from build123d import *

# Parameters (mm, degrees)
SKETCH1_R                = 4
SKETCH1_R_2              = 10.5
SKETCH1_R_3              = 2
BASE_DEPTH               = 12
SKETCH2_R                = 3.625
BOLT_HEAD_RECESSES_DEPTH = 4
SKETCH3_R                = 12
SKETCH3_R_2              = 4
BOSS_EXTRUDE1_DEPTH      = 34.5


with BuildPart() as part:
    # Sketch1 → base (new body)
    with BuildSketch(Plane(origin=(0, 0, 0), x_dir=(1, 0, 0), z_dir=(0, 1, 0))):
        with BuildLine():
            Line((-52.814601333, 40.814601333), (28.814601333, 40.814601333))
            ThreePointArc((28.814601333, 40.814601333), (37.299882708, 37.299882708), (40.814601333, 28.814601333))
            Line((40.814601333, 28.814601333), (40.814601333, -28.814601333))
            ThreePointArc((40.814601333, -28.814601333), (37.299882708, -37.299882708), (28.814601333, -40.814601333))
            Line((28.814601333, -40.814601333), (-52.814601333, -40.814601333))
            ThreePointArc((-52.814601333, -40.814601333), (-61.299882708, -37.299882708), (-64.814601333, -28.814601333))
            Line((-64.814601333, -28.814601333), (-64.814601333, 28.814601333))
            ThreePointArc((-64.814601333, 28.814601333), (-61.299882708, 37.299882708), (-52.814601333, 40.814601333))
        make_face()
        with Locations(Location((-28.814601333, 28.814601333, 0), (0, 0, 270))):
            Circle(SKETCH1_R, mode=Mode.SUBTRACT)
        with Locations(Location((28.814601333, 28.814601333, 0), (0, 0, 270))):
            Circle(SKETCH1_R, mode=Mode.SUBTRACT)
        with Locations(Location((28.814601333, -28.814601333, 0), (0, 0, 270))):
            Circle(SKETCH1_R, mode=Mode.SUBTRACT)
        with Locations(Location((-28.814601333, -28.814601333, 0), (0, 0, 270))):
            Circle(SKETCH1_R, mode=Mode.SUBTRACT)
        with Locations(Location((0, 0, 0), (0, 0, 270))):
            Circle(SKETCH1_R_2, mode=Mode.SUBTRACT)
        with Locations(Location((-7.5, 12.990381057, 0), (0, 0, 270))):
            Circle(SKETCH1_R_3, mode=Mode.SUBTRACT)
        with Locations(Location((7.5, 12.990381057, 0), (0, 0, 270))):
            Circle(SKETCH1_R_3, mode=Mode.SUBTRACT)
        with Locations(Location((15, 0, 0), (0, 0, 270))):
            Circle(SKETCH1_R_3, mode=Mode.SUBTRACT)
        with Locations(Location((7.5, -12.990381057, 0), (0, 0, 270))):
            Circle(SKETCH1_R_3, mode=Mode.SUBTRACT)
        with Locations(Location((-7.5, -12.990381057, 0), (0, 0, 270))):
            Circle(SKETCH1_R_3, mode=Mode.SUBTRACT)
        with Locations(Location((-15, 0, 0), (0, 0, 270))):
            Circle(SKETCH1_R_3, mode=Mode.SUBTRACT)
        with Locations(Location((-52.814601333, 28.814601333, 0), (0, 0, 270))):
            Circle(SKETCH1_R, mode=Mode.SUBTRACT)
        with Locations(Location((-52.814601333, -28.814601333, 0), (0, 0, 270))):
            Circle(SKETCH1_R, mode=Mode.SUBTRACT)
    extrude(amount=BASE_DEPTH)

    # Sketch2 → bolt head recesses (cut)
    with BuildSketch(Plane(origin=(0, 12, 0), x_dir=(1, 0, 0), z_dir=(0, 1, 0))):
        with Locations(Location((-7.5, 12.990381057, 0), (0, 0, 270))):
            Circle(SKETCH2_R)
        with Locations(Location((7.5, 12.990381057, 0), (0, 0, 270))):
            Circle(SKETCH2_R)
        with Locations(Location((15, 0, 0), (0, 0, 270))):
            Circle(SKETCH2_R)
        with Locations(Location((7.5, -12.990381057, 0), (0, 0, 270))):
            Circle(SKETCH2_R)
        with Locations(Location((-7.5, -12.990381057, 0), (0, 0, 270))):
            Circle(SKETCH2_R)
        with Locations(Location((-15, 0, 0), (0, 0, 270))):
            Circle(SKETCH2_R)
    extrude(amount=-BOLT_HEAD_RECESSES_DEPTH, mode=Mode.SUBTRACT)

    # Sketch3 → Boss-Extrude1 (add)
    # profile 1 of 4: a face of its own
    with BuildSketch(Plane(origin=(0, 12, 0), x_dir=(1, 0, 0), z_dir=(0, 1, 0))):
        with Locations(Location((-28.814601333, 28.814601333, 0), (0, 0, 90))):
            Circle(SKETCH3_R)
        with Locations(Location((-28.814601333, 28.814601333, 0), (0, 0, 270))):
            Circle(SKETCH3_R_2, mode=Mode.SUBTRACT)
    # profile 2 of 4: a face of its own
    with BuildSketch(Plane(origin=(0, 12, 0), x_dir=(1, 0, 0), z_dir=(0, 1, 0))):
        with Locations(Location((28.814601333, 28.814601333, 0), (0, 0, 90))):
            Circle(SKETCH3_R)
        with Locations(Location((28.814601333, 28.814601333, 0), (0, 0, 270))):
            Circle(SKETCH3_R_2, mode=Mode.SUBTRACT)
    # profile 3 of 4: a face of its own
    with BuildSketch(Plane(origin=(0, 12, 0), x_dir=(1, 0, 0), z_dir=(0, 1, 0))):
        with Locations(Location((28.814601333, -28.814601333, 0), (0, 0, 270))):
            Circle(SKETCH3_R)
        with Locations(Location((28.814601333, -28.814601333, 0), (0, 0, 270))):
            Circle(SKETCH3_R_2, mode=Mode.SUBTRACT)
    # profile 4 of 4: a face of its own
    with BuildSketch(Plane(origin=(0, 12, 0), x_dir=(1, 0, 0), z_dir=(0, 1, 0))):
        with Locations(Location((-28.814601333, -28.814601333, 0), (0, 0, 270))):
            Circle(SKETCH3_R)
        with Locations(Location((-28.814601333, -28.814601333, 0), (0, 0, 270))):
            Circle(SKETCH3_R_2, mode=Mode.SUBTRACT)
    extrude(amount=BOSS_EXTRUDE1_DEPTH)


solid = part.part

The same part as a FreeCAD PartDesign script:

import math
import FreeCAD as App
import Part
import Sketcher

doc = App.newDocument("Part")
body = doc.addObject("PartDesign::Body", "Body")

# Sketch on XZ plane
sketch1 = body.newObject("Sketcher::SketchObject", "Sketch")
sketch1.AttachmentSupport = (doc.getObject("XZ_Plane"), [""])
sketch1.MapMode = "FlatFace"
sketch1.addGeometry([
    Part.LineSegment(App.Vector(28.814601, -40.814601, 0), App.Vector(-52.814601, -40.814601, 0)),  # 0
    Part.ArcOfCircle(Part.Circle(App.Vector(-52.814601, -28.814601, 0), App.Vector(0, 0, 1), 12), math.radians(180), math.radians(270)),  # 1
    Part.LineSegment(App.Vector(-64.814601, -28.814601, 0), App.Vector(-64.814601, 28.814601, 0)),  # 2
    Part.ArcOfCircle(Part.Circle(App.Vector(-52.814601, 28.814601, 0), App.Vector(0, 0, 1), 12), math.radians(90), math.radians(180)),  # 3
    Part.LineSegment(App.Vector(-52.814601, 40.814601, 0), App.Vector(28.814601, 40.814601, 0)),  # 4
    Part.ArcOfCircle(Part.Circle(App.Vector(28.814601, 28.814601, 0), App.Vector(0, 0, 1), 12), math.radians(0), math.radians(90)),  # 5
    Part.LineSegment(App.Vector(40.814601, 28.814601, 0), App.Vector(40.814601, -28.814601, 0)),  # 6
    Part.ArcOfCircle(Part.Circle(App.Vector(28.814601, -28.814601, 0), App.Vector(0, 0, 1), 12), math.radians(-90), math.radians(0)),  # 7
    Part.Circle(App.Vector(28.814601, 28.814601, 0), App.Vector(0, 0, 1), 4),  # 8
    Part.Circle(App.Vector(7.5, 12.990381, 0), App.Vector(0, 0, 1), 2),  # 9
    Part.Circle(App.Vector(-7.5, 12.990381, 0), App.Vector(0, 0, 1), 2),  # 10
    Part.Circle(App.Vector(-28.814601, 28.814601, 0), App.Vector(0, 0, 1), 4),  # 11
    Part.Circle(App.Vector(-52.814601, 28.814601, 0), App.Vector(0, 0, 1), 4),  # 12
    Part.Circle(App.Vector(15, 0, 0), App.Vector(0, 0, 1), 2),  # 13
    Part.Circle(App.Vector(0, 0, 0), App.Vector(0, 0, 1), 10.5),  # 14
    Part.Circle(App.Vector(7.5, -12.990381, 0), App.Vector(0, 0, 1), 2),  # 15
    Part.Circle(App.Vector(-7.5, -12.990381, 0), App.Vector(0, 0, 1), 2),  # 16
    Part.Circle(App.Vector(28.814601, -28.814601, 0), App.Vector(0, 0, 1), 4),  # 17
    Part.Circle(App.Vector(-15, 0, 0), App.Vector(0, 0, 1), 2),  # 18
    Part.Circle(App.Vector(-28.814601, -28.814601, 0), App.Vector(0, 0, 1), 4),  # 19
    Part.Circle(App.Vector(-52.814601, -28.814601, 0), App.Vector(0, 0, 1), 4),  # 20
], False)
sketch1.addConstraint([
    Sketcher.Constraint("Tangent", 0, 2, 1, 2),
    Sketcher.Constraint("Tangent", 1, 1, 2, 1),
    Sketcher.Constraint("Tangent", 2, 2, 3, 2),
    Sketcher.Constraint("Tangent", 3, 1, 4, 1),
    Sketcher.Constraint("Tangent", 4, 2, 5, 2),
    Sketcher.Constraint("Tangent", 5, 1, 6, 1),
    Sketcher.Constraint("Tangent", 6, 2, 7, 2),
    Sketcher.Constraint("Tangent", 7, 1, 0, 1),
    Sketcher.Constraint("Horizontal", 0),
    Sketcher.Constraint("Vertical", 2),
    Sketcher.Constraint("Horizontal", 4),
    Sketcher.Constraint("Vertical", 6),
    Sketcher.Constraint("Coincident", 14, 3, -1, 1),
    Sketcher.Constraint("Coincident", 8, 3, 5, 3),
    Sketcher.Constraint("Coincident", 12, 3, 3, 3),
    Sketcher.Constraint("Coincident", 17, 3, 7, 3),
    Sketcher.Constraint("Coincident", 20, 3, 1, 3),
    Sketcher.Constraint("Equal", 1, 3),
    Sketcher.Constraint("Equal", 3, 5),
    Sketcher.Constraint("Equal", 5, 7),
    Sketcher.Constraint("Equal", 9, 10),
    Sketcher.Constraint("Equal", 8, 11),
    Sketcher.Constraint("Equal", 11, 12),
    Sketcher.Constraint("Equal", 10, 13),
    Sketcher.Constraint("Equal", 13, 15),
    Sketcher.Constraint("Equal", 15, 16),
    Sketcher.Constraint("Equal", 12, 17),
    Sketcher.Constraint("Equal", 16, 18),
    Sketcher.Constraint("Equal", 17, 19),
    Sketcher.Constraint("Equal", 19, 20),
    Sketcher.Constraint("Symmetric", 7, 3, 11, 3, -1, 1),
    Sketcher.Constraint("Symmetric", 10, 3, 15, 3, -1, 1),
    Sketcher.Constraint("Symmetric", 9, 3, 16, 3, -1, 1),
    Sketcher.Constraint("Symmetric", 13, 3, 18, 3, -1, 1),
    Sketcher.Constraint("Symmetric", 5, 3, 19, 3, -1, 1),
    Sketcher.Constraint("Symmetric", 9, 3, 10, 3, -2),
    Sketcher.Constraint("PointOnObject", 13, 3, -1),
    Sketcher.Constraint("Horizontal", 8, 3, 11, 3),
    Sketcher.Constraint("Diameter", 8, 8.0),
    Sketcher.Constraint("Diameter", 9, 4.0),
    Sketcher.Constraint("Diameter", 14, 21.0),
    Sketcher.Constraint("Radius", 1, 12.0),
    Sketcher.Constraint("DistanceX", -1, 1, 13, 3, 15.0),
    Sketcher.Constraint("DistanceX", 10, 3, 9, 3, 15.0),
    Sketcher.Constraint("DistanceX", 3, 3, 11, 3, 24.0),
    Sketcher.Constraint("DistanceX", 1, 3, -1, 1, 52.814601),
    Sketcher.Constraint("DistanceY", 1, 3, -1, 1, 28.814601),
    Sketcher.Constraint("DistanceY", -1, 1, 9, 3, 12.990381),
])
pad1 = body.newObject("PartDesign::Pad", "Pad")
pad1.Profile = sketch1
pad1.Length = 12
pad1.Reversed = True

# Sketch on XZ plane
sketch2 = body.newObject("Sketcher::SketchObject", "Sketch001")
sketch2.AttachmentSupport = (doc.getObject("XZ_Plane"), [""])
sketch2.MapMode = "FlatFace"
sketch2.AttachmentOffset = App.Placement(App.Vector(0, 0, -12), App.Rotation())
sketch2.addGeometry([
    Part.Circle(App.Vector(-7.5, -12.990381, 0), App.Vector(0, 0, 1), 3.625),  # 0
    Part.Circle(App.Vector(7.5, -12.990381, 0), App.Vector(0, 0, 1), 3.625),  # 1
    Part.Circle(App.Vector(15, 0, 0), App.Vector(0, 0, 1), 3.625),  # 2
    Part.Circle(App.Vector(7.5, 12.990381, 0), App.Vector(0, 0, 1), 3.625),  # 3
    Part.Circle(App.Vector(-7.5, 12.990381, 0), App.Vector(0, 0, 1), 3.625),  # 4
    Part.Circle(App.Vector(-15, 0, 0), App.Vector(0, 0, 1), 3.625),  # 5
], False)
sketch2.addConstraint([
    Sketcher.Constraint("Equal", 0, 1),
    Sketcher.Constraint("Equal", 1, 2),
    Sketcher.Constraint("Equal", 2, 3),
    Sketcher.Constraint("Equal", 3, 4),
    Sketcher.Constraint("Equal", 4, 5),
    Sketcher.Constraint("Symmetric", 0, 3, 3, 3, -1, 1),
    Sketcher.Constraint("Symmetric", 1, 3, 4, 3, -1, 1),
    Sketcher.Constraint("Symmetric", 2, 3, 5, 3, -1, 1),
    Sketcher.Constraint("Symmetric", 0, 3, 1, 3, -2),
    Sketcher.Constraint("PointOnObject", 2, 3, -1),
    Sketcher.Constraint("Diameter", 0, 7.25),
    Sketcher.Constraint("DistanceX", -1, 1, 2, 3, 15.0),
    Sketcher.Constraint("DistanceX", 0, 3, 1, 3, 15.0),
    Sketcher.Constraint("DistanceY", 0, 3, -1, 1, 12.990381),
])
pocket1 = body.newObject("PartDesign::Pocket", "Pocket")
pocket1.Profile = sketch2
pocket1.Length = 4
pocket1.Reversed = True

# Sketch on XZ plane
sketch3 = body.newObject("Sketcher::SketchObject", "Sketch002")
sketch3.AttachmentSupport = (doc.getObject("XZ_Plane"), [""])
sketch3.MapMode = "FlatFace"
sketch3.AttachmentOffset = App.Placement(App.Vector(0, 0, -12), App.Rotation())
sketch3.addGeometry([
    Part.Circle(App.Vector(-28.814601, -28.814601, 0), App.Vector(0, 0, 1), 12),  # 0
    Part.Circle(App.Vector(-28.814601, -28.814601, 0), App.Vector(0, 0, 1), 4),  # 1
    Part.Circle(App.Vector(28.814601, -28.814601, 0), App.Vector(0, 0, 1), 12),  # 2
    Part.Circle(App.Vector(28.814601, -28.814601, 0), App.Vector(0, 0, 1), 4),  # 3
    Part.Circle(App.Vector(28.814601, 28.814601, 0), App.Vector(0, 0, 1), 12),  # 4
    Part.Circle(App.Vector(28.814601, 28.814601, 0), App.Vector(0, 0, 1), 4),  # 5
    Part.Circle(App.Vector(-28.814601, 28.814601, 0), App.Vector(0, 0, 1), 12),  # 6
    Part.Circle(App.Vector(-28.814601, 28.814601, 0), App.Vector(0, 0, 1), 4),  # 7
], False)
sketch3.addConstraint([
    Sketcher.Constraint("Coincident", 1, 3, 0, 3),
    Sketcher.Constraint("Coincident", 3, 3, 2, 3),
    Sketcher.Constraint("Coincident", 5, 3, 4, 3),
    Sketcher.Constraint("Coincident", 7, 3, 6, 3),
    Sketcher.Constraint("Equal", 0, 2),
    Sketcher.Constraint("Equal", 1, 3),
    Sketcher.Constraint("Equal", 2, 4),
    Sketcher.Constraint("Equal", 3, 5),
    Sketcher.Constraint("Equal", 4, 6),
    Sketcher.Constraint("Equal", 5, 7),
    Sketcher.Constraint("Symmetric", 0, 3, 4, 3, -1, 1),
    Sketcher.Constraint("Symmetric", 2, 3, 6, 3, -1, 1),
    Sketcher.Constraint("Symmetric", 0, 3, 2, 3, -2),
    Sketcher.Constraint("Diameter", 0, 24.0),
    Sketcher.Constraint("Diameter", 1, 8.0),
    Sketcher.Constraint("DistanceX", 0, 3, -1, 1, 28.814601),
    Sketcher.Constraint("DistanceY", 0, 3, -1, 1, 28.814601),
])
pad2 = body.newObject("PartDesign::Pad", "Pad001")
pad2.Profile = sketch3
pad2.Length = 34.5
pad2.Reversed = True

doc.recompute()
